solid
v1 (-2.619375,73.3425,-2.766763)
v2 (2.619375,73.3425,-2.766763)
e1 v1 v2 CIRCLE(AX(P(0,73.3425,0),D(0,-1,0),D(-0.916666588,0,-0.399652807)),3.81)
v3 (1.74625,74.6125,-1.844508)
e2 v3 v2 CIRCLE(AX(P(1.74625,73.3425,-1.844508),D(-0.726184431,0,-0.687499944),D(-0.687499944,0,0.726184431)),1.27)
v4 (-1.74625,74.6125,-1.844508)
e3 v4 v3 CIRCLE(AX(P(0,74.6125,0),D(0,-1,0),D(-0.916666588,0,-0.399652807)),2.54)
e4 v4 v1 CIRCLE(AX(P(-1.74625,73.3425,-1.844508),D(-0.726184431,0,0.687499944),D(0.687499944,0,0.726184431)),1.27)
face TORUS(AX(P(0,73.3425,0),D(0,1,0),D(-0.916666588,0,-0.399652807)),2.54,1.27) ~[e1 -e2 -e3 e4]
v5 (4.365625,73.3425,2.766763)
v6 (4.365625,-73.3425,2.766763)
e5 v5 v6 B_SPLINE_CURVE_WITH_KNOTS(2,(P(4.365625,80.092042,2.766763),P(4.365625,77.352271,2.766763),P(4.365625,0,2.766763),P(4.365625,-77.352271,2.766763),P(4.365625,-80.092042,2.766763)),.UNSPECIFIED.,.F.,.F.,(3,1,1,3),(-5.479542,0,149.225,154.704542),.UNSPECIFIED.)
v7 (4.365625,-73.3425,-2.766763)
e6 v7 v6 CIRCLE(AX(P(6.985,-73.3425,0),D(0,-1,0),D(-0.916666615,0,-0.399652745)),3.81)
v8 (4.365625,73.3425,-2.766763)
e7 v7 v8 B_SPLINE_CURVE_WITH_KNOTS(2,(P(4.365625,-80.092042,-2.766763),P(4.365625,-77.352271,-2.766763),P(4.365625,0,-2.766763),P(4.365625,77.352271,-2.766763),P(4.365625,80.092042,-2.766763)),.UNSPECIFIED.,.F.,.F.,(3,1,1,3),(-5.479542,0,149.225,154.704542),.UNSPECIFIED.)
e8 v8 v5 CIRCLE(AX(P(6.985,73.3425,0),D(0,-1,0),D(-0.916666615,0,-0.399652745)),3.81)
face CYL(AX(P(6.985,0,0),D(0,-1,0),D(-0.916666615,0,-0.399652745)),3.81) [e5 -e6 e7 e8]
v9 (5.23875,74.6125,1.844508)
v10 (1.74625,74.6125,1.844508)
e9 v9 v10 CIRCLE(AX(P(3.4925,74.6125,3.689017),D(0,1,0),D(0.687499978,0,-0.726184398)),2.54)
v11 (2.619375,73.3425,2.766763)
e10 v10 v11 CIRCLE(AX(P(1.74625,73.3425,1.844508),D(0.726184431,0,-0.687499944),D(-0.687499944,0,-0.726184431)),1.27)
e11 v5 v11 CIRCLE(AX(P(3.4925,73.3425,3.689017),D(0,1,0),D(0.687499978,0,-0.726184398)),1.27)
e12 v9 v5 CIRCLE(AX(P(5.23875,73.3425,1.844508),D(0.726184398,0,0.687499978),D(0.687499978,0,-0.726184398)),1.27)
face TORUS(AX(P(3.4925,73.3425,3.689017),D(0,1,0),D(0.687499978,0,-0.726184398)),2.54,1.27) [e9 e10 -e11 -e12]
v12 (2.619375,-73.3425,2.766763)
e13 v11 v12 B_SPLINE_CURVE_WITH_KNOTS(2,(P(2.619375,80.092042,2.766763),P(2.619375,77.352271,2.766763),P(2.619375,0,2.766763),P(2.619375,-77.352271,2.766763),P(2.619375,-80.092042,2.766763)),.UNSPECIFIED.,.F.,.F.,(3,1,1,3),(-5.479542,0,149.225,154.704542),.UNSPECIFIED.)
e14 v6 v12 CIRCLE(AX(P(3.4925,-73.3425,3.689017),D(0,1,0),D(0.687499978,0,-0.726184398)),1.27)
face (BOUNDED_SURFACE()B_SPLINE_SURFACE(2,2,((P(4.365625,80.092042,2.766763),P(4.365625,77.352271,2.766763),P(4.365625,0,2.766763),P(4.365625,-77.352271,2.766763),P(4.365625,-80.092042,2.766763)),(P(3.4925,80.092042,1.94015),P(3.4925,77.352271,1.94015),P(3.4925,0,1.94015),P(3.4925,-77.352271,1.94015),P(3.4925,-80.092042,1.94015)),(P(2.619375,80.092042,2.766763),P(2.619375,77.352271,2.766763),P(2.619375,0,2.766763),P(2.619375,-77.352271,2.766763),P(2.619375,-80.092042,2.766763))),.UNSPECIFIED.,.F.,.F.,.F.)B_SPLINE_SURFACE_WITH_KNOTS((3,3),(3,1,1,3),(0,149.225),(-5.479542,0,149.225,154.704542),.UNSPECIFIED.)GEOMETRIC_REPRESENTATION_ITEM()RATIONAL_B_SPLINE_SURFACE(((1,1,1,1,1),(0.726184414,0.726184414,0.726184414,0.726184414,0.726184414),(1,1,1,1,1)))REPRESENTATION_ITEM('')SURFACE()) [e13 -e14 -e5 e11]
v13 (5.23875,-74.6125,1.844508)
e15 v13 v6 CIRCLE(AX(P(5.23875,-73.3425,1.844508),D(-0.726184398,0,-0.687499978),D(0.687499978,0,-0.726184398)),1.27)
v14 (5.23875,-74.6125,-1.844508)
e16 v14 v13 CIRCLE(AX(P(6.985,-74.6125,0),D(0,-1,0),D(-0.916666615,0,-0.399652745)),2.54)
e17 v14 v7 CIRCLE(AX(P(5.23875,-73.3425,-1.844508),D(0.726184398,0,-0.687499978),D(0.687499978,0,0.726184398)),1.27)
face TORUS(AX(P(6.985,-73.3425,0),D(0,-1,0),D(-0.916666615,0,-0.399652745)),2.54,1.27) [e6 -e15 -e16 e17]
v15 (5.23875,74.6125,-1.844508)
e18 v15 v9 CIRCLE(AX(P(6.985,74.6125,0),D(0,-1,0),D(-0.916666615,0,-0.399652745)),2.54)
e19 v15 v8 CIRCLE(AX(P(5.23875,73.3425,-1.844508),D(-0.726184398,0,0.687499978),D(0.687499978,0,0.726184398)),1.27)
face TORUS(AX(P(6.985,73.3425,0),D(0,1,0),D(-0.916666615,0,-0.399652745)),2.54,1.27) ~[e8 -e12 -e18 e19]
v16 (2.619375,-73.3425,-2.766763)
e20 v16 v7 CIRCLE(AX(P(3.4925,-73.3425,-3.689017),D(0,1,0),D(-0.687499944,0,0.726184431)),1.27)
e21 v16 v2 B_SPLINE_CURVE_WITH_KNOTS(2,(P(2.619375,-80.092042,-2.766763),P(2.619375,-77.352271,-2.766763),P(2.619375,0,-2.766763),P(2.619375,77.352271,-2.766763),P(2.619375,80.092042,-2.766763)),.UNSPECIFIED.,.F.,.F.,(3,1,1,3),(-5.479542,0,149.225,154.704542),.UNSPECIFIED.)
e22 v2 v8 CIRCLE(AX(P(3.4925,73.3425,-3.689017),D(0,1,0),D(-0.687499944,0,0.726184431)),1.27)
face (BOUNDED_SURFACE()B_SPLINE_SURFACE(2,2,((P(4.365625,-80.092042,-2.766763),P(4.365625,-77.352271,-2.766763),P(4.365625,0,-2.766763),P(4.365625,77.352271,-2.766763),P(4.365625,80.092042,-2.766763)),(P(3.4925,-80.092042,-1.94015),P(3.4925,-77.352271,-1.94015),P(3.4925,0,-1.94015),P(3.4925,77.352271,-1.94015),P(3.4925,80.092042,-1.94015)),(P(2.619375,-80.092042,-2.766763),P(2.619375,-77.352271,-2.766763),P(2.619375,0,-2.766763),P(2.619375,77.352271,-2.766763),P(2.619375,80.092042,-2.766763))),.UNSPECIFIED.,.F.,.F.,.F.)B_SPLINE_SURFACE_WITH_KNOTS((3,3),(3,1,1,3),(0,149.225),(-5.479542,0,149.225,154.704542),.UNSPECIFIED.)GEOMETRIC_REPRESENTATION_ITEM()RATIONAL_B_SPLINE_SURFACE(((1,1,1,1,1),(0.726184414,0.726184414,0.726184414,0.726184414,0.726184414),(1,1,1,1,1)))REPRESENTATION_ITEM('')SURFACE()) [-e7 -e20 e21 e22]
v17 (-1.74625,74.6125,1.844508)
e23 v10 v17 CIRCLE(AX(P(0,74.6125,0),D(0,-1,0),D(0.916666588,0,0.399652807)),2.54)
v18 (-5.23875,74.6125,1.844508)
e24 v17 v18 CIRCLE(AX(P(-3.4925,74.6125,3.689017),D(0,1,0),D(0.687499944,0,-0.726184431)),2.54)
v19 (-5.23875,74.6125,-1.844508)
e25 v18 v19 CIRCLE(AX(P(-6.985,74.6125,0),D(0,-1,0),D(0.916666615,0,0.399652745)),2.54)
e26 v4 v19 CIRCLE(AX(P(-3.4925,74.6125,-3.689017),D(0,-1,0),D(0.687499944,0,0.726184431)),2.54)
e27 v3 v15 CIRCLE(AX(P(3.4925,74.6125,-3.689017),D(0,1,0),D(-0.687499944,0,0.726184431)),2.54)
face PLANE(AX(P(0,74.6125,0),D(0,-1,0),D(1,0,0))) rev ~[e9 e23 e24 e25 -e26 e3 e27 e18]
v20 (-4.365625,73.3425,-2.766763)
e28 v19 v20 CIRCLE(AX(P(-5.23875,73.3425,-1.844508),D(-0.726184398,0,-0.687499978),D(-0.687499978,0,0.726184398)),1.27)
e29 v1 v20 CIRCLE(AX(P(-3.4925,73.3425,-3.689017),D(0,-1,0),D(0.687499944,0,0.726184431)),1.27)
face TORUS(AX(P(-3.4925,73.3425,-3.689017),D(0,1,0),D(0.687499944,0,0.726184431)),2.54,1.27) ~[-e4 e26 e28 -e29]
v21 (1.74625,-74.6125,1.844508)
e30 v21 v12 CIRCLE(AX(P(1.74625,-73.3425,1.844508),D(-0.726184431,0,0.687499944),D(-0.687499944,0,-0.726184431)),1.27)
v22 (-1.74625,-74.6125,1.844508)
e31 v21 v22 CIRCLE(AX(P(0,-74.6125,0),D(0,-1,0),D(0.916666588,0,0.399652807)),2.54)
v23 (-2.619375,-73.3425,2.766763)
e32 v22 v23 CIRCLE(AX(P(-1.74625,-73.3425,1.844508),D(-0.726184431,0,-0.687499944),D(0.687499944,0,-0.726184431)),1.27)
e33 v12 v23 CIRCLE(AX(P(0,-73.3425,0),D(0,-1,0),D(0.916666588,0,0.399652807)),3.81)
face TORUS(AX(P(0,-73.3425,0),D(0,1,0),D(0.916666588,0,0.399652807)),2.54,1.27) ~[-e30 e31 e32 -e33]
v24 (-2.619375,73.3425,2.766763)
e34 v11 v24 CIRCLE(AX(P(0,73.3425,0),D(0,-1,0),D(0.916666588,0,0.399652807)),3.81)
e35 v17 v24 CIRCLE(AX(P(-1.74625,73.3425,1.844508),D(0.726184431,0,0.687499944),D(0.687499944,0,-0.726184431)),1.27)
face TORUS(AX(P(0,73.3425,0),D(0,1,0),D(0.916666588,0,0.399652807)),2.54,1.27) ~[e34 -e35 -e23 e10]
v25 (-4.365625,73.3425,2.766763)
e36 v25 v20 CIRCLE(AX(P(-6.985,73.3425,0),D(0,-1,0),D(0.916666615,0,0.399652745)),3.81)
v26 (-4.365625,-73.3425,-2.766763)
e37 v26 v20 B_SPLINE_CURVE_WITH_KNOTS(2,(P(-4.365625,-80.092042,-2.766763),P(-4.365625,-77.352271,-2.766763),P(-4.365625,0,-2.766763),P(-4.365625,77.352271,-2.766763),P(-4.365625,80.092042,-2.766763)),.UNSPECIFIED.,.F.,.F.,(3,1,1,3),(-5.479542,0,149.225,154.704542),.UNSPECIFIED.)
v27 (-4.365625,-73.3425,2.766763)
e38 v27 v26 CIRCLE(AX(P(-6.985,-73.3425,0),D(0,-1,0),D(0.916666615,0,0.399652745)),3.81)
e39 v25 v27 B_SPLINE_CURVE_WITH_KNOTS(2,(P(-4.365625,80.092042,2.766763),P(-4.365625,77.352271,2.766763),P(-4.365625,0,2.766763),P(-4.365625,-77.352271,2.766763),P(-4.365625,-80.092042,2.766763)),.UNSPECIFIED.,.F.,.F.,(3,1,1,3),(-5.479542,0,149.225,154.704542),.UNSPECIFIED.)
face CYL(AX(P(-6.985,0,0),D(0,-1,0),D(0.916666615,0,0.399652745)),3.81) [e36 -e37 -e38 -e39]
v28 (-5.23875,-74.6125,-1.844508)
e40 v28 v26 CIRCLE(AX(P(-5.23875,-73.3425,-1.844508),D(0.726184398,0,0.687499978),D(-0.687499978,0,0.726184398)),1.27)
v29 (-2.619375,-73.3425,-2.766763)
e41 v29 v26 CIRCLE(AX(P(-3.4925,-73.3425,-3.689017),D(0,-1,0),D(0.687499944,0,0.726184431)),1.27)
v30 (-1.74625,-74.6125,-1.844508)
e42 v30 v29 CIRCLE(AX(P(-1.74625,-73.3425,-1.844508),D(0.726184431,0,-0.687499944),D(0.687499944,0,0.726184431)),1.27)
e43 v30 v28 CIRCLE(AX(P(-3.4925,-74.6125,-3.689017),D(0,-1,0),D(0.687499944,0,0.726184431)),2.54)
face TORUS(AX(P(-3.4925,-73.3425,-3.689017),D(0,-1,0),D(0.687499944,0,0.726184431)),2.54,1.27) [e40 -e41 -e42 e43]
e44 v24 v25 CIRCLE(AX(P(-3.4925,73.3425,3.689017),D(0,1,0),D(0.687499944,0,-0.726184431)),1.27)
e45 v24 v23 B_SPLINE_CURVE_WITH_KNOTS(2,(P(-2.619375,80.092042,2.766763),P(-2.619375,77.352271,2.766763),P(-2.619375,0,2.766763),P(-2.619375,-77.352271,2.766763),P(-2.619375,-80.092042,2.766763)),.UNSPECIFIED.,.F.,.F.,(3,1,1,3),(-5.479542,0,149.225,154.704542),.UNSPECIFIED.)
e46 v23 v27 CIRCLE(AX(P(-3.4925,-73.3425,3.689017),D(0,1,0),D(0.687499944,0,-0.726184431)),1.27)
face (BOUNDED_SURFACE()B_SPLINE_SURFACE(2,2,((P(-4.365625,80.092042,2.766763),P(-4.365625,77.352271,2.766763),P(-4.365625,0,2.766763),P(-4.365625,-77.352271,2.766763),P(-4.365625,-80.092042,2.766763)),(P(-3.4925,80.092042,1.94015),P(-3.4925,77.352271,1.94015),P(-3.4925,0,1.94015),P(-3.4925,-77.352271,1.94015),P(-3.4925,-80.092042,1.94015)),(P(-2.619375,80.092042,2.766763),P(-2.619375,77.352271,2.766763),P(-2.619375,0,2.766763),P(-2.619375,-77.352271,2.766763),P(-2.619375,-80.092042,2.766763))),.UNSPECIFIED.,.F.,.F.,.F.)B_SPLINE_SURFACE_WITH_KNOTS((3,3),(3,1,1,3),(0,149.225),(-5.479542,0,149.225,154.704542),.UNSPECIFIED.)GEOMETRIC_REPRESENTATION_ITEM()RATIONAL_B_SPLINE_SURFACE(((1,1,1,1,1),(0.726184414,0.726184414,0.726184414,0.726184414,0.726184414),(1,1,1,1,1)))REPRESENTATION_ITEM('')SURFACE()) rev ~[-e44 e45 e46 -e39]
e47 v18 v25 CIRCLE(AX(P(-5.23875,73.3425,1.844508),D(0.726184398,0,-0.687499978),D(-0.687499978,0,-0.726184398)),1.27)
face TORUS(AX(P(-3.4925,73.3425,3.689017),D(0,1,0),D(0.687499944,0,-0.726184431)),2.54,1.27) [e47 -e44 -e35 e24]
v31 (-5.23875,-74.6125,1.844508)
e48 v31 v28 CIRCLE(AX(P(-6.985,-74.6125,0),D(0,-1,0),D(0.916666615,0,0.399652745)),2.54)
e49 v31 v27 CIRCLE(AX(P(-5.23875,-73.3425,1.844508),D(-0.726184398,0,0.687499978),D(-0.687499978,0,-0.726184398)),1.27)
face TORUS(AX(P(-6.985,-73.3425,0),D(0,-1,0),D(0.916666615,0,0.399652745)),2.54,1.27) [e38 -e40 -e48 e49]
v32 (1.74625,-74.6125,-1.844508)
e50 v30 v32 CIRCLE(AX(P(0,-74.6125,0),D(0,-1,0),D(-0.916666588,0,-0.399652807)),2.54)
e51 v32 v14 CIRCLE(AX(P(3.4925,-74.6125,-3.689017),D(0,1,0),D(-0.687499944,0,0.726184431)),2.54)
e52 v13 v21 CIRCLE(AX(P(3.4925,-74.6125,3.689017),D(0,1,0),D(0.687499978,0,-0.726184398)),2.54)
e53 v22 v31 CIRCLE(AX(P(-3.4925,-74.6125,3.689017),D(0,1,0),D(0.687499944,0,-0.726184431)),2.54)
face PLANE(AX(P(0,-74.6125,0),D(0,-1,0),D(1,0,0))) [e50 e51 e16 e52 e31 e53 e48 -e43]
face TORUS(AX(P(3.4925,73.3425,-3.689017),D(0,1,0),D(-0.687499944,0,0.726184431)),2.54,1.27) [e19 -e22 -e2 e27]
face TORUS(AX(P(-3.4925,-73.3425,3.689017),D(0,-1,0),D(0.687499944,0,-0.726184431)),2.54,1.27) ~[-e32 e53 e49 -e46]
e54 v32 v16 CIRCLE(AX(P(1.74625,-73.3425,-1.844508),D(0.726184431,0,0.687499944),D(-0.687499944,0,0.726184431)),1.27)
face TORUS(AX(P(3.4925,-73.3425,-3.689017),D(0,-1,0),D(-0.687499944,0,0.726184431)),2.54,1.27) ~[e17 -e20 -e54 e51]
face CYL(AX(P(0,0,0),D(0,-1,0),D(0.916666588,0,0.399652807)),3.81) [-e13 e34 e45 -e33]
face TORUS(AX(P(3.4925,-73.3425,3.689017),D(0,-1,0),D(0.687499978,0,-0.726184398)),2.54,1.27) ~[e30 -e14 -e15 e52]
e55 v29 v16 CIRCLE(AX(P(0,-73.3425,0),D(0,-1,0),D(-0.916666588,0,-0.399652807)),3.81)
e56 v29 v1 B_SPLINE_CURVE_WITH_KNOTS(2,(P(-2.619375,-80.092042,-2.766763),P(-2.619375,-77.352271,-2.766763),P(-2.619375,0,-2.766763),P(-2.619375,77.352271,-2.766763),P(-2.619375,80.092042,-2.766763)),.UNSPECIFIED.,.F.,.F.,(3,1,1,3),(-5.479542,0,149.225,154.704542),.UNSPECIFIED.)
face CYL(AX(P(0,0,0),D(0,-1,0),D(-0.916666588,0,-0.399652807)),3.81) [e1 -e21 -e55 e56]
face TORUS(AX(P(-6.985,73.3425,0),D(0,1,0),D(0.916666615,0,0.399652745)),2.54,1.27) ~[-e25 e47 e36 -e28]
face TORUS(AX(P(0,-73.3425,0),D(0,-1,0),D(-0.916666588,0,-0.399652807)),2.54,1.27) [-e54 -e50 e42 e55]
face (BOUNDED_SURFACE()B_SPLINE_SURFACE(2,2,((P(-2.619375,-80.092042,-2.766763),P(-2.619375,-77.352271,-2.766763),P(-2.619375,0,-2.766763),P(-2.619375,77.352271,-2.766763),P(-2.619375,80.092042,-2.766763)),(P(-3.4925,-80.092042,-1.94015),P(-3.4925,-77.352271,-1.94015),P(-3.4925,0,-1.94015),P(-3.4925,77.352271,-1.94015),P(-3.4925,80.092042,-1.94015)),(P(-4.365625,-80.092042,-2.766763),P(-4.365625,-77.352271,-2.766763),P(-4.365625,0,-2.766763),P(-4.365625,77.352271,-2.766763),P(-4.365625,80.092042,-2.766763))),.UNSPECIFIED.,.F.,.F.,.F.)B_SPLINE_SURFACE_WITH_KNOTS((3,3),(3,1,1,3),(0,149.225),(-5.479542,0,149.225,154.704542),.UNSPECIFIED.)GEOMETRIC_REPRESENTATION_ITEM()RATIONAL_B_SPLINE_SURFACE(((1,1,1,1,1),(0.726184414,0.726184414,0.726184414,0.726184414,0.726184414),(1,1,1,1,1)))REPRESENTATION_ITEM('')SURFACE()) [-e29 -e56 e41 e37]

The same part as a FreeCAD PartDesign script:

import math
import FreeCAD as App
import Part
import Sketcher

V = App.Vector
Q = App.Units.Quantity

doc = App.newDocument("Part")
params = doc.addObject("Spreadsheet::Sheet", "Params")
for row, (alias, value) in enumerate([
    ("sketch1_radius", "0.15 in"),
    ("pad1_length", "5.875 in"),
    ("fillet_radius", "0.05 in"),
], start=1):
    params.set(f"A{row}", alias)
    params.set(f"B{row}", "=" + value)
    params.setAlias(f"B{row}", alias)

body = doc.addObject("PartDesign::Body", "Body")

sketch1 = body.newObject("Sketcher::SketchObject", "Sketch")
sketch1.AttachmentSupport = (doc.getObject("XZ_Plane"), [""])
sketch1.MapMode = "FlatFace"
sketch1.addGeometry([
    Part.ArcOfCircle(Part.Circle(V(7, 0, 0), V(0, 0, 1), 3.8), math.radians(-156), math.radians(156)),
    Part.ArcOfCircle(Part.Circle(V(0, 0, 0), V(0, 0, 1), 3.8), math.radians(24), math.radians(156)),
    Part.ArcOfCircle(Part.Circle(V(-7, 0, 0), V(0, 0, 1), 3.8), math.radians(24), math.radians(336)),
    Part.ArcOfCircle(Part.Circle(V(0, 0, 0), V(0, 0, 1), 3.8), math.radians(-156), math.radians(-24)),
], False)
sketch1.addConstraint([
    Sketcher.Constraint("Coincident", 0, 2, 1, 1),
    Sketcher.Constraint("Coincident", 1, 2, 2, 1),
    Sketcher.Constraint("Coincident", 2, 2, 3, 1),
    Sketcher.Constraint("Coincident", 3, 2, 0, 1),
    Sketcher.Constraint("Coincident", 1, 3, -1, 1),
    Sketcher.Constraint("Coincident", 3, 3, -1, 1),
    Sketcher.Constraint("Equal", 0, 1),
    Sketcher.Constraint("Equal", 1, 2),
    Sketcher.Constraint("Equal", 2, 3),
    Sketcher.Constraint("Symmetric", 0, 3, 2, 3, -1, 1),
    Sketcher.Constraint("PointOnObject", 0, 3, -1),
    Sketcher.Constraint("Radius", 0, Q("0.15 in")),
    Sketcher.Constraint("DistanceX", 2, 3, 0, 3, Q("0.55 in")),
])
sketch1.setExpression("Constraints[11]", "Params.sketch1_radius")
pad1 = body.newObject("PartDesign::Pad", "Pad")
pad1.Profile = sketch1
pad1.setExpression("Length", "Params.pad1_length")
pad1.Midplane = True
doc.recompute()

fillet = body.newObject("PartDesign::Fillet", "Fillet")
fillet.Base = (pad1, ["Edge1"])
fillet.UseAllEdges = True
fillet.setExpression("Radius", "Params.fillet_radius")

doc.recompute()
